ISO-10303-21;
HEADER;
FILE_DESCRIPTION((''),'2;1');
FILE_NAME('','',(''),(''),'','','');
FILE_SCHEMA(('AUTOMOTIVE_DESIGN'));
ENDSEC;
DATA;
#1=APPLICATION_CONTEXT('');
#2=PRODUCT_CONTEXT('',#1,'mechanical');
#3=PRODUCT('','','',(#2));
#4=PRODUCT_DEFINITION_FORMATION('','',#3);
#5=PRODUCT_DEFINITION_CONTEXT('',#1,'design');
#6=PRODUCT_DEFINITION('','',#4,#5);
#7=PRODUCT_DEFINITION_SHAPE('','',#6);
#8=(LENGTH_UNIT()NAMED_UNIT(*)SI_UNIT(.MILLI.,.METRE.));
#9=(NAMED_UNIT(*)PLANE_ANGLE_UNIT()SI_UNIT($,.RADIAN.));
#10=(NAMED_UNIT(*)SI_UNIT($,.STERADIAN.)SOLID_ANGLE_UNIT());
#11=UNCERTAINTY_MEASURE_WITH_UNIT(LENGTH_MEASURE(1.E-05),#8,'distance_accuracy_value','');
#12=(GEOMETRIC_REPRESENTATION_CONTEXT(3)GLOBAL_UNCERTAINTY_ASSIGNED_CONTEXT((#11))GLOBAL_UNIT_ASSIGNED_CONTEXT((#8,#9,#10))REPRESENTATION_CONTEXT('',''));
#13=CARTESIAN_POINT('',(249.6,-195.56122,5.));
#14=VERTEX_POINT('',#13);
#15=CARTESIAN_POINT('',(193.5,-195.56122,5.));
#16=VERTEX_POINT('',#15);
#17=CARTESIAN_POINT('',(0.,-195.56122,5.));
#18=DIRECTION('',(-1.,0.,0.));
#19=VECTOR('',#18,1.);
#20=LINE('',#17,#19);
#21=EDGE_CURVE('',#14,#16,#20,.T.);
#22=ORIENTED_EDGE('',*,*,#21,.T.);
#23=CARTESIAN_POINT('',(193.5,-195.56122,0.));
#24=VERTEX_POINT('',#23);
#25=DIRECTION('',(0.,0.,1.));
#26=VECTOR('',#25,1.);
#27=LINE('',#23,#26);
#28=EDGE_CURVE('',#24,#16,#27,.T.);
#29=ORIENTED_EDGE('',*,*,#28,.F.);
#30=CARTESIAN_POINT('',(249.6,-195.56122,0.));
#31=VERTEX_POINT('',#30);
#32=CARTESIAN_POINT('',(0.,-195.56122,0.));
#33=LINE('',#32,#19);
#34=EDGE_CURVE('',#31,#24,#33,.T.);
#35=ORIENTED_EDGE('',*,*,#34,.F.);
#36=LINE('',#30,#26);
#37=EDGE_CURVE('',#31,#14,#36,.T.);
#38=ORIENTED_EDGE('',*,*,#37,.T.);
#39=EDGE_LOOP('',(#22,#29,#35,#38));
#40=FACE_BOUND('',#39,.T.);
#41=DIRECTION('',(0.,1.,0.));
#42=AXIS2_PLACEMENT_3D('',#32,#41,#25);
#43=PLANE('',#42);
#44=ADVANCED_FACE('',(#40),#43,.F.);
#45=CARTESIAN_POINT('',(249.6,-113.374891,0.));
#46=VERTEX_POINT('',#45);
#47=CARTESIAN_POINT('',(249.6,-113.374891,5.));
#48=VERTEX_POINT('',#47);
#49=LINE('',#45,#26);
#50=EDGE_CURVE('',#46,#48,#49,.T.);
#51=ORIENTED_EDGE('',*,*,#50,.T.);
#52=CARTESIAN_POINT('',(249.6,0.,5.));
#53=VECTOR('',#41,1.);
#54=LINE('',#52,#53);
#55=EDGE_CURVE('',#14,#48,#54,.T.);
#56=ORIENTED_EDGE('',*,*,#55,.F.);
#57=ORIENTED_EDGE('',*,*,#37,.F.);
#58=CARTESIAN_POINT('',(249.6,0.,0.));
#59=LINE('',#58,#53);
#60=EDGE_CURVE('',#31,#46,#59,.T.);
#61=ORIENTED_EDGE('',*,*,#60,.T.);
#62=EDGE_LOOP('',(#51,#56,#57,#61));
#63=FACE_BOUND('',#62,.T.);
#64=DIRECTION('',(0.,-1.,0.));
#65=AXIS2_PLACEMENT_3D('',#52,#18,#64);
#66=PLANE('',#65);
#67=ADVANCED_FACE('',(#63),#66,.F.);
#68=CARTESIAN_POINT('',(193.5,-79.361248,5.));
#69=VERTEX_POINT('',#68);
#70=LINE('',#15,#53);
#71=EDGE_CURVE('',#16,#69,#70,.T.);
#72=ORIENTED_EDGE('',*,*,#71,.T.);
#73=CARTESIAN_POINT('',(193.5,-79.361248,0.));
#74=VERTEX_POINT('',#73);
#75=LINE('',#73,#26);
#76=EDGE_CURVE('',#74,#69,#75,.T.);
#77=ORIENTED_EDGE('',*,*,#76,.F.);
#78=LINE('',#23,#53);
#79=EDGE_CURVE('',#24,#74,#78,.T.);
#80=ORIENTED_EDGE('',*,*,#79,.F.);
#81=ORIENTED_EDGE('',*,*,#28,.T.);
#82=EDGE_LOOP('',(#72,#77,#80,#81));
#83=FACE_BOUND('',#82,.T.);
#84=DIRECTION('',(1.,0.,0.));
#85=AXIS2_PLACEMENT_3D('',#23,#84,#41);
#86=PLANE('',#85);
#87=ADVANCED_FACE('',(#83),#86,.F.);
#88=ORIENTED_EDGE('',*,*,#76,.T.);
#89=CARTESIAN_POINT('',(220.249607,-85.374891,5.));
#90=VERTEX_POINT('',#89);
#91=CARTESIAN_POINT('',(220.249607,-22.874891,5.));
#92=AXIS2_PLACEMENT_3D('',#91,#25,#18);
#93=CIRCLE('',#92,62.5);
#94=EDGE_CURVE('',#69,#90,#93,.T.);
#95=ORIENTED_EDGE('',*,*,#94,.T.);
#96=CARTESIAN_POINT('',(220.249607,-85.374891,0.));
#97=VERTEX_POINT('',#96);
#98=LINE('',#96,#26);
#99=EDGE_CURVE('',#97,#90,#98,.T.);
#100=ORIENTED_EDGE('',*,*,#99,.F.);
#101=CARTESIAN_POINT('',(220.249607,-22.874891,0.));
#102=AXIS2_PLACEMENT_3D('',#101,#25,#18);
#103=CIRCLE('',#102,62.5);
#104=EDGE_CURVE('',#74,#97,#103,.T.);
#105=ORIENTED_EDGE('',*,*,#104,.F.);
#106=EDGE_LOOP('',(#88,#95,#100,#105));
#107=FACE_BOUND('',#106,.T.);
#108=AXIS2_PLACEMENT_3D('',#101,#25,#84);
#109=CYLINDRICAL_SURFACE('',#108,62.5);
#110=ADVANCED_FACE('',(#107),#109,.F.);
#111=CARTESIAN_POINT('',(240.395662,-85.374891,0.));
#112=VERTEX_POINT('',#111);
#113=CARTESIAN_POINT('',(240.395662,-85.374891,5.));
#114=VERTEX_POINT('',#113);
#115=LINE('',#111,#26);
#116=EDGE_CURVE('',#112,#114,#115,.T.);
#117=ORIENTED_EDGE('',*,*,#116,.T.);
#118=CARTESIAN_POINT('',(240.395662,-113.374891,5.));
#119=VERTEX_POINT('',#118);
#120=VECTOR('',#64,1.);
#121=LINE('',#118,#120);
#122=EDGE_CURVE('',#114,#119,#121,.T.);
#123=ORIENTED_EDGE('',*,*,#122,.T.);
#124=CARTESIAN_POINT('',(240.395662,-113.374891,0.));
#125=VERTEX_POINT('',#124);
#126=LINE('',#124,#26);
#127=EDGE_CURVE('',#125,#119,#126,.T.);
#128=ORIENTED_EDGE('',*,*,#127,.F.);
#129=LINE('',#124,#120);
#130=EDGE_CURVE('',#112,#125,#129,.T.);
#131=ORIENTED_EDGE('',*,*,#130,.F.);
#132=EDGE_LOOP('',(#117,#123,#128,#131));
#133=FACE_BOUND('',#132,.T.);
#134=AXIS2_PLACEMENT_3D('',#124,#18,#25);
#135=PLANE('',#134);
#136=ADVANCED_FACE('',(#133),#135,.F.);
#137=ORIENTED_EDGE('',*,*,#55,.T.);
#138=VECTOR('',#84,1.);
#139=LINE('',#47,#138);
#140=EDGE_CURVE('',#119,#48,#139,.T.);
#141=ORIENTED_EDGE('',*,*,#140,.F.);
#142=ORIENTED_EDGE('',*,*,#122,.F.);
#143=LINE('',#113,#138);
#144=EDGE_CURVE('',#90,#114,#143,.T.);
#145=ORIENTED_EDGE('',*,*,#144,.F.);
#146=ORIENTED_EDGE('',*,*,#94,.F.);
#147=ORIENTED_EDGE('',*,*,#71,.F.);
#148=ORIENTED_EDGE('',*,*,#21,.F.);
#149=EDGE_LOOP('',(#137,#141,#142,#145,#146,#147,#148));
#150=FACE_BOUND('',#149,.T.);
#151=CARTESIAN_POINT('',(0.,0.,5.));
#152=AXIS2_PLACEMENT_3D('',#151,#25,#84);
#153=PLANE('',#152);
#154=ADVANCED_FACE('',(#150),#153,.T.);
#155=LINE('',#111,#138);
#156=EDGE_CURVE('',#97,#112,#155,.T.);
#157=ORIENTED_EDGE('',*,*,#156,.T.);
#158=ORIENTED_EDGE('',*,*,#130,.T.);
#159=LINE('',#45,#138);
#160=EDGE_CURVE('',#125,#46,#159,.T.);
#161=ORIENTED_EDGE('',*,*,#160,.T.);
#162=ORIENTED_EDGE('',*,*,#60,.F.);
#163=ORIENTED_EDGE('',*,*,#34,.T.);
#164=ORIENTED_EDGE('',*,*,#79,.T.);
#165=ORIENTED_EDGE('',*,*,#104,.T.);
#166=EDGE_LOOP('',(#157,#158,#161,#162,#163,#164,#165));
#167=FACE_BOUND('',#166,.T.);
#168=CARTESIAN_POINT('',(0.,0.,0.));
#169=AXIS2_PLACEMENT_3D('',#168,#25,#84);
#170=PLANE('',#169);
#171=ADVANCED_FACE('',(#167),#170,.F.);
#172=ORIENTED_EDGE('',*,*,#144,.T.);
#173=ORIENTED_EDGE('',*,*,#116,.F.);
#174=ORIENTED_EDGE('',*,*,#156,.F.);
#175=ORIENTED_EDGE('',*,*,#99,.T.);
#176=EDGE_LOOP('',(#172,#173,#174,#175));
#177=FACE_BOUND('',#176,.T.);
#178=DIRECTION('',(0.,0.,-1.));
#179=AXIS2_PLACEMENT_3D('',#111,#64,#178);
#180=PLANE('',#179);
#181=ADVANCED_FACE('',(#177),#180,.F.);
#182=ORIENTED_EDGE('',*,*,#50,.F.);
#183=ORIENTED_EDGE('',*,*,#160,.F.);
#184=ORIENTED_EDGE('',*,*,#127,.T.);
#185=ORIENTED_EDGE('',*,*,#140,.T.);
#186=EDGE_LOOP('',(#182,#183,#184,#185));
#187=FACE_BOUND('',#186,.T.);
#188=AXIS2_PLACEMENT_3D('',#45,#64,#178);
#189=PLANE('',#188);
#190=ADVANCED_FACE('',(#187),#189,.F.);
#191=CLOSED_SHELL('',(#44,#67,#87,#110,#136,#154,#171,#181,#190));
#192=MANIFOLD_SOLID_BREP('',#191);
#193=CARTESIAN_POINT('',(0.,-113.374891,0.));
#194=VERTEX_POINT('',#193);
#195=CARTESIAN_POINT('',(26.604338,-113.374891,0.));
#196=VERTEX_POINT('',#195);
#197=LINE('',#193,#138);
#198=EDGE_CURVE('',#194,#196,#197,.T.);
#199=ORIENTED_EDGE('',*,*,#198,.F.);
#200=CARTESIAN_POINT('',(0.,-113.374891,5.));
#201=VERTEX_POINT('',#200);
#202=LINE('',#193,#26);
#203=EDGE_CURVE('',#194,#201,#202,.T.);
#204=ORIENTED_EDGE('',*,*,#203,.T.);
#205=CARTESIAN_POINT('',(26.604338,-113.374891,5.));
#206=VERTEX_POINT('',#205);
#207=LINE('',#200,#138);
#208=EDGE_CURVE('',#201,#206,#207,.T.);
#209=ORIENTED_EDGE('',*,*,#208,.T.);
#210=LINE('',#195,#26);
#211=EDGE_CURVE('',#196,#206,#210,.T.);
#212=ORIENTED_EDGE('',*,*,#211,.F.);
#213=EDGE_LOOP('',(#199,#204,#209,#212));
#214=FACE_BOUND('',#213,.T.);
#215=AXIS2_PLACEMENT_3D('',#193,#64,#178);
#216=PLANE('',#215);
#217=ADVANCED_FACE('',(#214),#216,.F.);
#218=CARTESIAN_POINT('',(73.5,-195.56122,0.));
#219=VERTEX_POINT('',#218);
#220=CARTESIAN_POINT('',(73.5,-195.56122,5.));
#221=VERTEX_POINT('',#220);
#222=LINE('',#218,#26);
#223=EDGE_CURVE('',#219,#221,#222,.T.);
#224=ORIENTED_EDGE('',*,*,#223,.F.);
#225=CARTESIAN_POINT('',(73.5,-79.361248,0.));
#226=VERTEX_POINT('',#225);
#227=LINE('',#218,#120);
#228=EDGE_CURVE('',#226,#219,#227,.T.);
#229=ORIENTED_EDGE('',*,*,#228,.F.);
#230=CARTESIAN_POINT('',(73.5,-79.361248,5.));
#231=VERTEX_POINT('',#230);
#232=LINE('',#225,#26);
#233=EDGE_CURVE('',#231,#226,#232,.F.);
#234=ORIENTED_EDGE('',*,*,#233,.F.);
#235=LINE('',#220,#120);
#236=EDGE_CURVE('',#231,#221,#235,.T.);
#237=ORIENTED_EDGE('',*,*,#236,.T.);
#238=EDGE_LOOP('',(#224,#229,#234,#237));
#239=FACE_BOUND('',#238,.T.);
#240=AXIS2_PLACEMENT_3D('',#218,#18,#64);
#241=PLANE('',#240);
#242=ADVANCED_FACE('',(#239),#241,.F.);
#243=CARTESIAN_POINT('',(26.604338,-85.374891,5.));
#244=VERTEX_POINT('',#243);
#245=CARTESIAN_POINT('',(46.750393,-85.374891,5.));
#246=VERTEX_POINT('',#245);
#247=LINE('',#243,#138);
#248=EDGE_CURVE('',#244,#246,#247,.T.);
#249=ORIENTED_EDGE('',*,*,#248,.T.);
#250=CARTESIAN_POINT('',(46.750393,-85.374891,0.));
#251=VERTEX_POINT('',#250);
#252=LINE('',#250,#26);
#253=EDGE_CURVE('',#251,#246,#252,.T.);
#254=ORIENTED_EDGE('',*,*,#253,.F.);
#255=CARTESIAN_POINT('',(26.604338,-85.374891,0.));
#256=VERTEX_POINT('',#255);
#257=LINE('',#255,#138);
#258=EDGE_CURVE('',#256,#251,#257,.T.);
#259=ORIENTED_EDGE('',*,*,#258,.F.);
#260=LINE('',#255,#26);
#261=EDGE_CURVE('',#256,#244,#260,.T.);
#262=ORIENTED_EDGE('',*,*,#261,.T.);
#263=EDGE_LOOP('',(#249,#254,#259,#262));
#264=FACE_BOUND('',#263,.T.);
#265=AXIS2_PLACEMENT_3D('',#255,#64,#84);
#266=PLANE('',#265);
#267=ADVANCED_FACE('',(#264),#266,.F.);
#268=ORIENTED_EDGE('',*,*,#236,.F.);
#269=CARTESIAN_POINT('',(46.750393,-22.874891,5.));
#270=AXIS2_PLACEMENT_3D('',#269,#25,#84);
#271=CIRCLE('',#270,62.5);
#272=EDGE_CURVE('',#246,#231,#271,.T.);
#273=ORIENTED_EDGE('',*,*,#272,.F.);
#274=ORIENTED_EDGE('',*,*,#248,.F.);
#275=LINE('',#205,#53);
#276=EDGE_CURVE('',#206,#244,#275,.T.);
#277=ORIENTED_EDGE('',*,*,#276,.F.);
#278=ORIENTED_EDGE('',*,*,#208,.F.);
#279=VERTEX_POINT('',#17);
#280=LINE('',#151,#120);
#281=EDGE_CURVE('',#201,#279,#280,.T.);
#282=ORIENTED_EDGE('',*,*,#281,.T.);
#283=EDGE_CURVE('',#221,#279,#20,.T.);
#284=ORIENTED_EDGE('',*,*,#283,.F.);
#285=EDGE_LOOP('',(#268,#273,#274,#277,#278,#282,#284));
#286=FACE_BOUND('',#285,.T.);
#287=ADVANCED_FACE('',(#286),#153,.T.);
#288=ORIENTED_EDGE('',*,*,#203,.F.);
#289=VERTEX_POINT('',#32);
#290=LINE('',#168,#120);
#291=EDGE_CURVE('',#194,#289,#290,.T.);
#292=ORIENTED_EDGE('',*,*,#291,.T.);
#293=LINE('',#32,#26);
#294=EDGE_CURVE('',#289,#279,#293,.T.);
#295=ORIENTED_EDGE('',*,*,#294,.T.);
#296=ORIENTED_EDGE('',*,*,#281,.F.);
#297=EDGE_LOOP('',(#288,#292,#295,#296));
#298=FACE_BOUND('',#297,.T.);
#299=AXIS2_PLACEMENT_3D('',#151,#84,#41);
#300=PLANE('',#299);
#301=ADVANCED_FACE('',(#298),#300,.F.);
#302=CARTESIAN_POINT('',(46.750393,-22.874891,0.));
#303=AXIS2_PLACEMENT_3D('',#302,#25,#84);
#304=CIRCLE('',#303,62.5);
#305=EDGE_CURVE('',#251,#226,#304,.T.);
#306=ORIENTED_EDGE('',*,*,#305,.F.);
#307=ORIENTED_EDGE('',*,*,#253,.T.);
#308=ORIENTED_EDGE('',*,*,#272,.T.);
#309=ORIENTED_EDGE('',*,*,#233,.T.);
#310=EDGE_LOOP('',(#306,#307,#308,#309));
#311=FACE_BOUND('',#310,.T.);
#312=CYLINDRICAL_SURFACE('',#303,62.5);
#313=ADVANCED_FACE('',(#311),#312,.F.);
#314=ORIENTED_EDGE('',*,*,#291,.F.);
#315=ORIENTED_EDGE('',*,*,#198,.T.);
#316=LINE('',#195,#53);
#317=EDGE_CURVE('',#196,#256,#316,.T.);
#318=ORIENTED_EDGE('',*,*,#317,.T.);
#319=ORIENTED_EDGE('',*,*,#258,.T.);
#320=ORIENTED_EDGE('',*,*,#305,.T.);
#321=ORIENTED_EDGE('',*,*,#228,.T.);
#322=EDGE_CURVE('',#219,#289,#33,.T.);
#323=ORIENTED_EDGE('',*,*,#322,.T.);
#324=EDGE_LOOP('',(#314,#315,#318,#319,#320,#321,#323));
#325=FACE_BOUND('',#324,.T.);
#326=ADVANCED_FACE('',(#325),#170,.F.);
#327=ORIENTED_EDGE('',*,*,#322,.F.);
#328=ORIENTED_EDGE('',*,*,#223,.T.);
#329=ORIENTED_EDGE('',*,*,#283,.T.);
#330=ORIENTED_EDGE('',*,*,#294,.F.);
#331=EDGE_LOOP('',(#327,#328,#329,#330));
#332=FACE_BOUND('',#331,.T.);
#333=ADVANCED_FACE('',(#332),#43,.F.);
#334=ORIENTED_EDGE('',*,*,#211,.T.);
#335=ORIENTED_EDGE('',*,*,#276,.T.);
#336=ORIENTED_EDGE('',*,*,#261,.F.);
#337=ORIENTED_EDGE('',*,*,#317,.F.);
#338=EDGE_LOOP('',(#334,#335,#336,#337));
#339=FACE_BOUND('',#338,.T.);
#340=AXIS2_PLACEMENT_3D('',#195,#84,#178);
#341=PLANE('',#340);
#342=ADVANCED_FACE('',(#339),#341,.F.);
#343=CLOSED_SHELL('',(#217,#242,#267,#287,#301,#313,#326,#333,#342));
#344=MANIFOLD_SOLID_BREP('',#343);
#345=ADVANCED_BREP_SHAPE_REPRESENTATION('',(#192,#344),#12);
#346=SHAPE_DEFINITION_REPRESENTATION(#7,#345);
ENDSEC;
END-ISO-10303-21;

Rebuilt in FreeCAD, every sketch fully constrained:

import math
import FreeCAD as App
import Part
import Sketcher
from FreeCAD import Vector
Q = App.Units.Quantity


def add_polygon(sketch, points):
    """Adds a closed chain of lines whose ends are joined by coincident constraints."""
    first, n = sketch.GeometryCount, len(points)
    for a, b in zip(points, points[1:] + points[:1]):
        sketch.addGeometry(Part.LineSegment(App.Vector(*a, 0), App.Vector(*b, 0)), False)
    for i in range(n):
        sketch.addConstraint(Sketcher.Constraint("Coincident", first + i, 2, first + (i + 1) % n, 1))

doc = App.newDocument("Part")
body = doc.addObject("PartDesign::Body", "Body")
body.AllowCompound = True

sketch1 = doc.addObject("Sketcher::SketchObject", "Sketch")
body.addObject(sketch1)
sketch1.AttachmentSupport = (doc.XY_Plane, [""])
sketch1.MapMode = "FlatFace"
add_polygon(sketch1, [(0, 0), (0, -267.4), (249.6, -267.4), (249.6, 0)])
sketch1.addConstraint(Sketcher.Constraint("Vertical", 0))
sketch1.addConstraint(Sketcher.Constraint("Horizontal", 1))
sketch1.addConstraint(Sketcher.Constraint("Vertical", 2))
sketch1.addConstraint(Sketcher.Constraint("Horizontal", 3))
sketch1.addConstraint(Sketcher.Constraint("Coincident", 3, 2, -1, 1))
sketch1.addConstraint(Sketcher.Constraint("DistanceX", 1, 1, 1, 2, Q("249.6 mm")))
sketch1.addConstraint(Sketcher.Constraint("DistanceY", 0, 2, 0, 1, Q("267.4 mm")))
pad1 = doc.addObject("PartDesign::Pad", "Pad")
body.addObject(pad1)
pad1.Profile = sketch1
pad1.Length = 5

sketch2 = doc.addObject("Sketcher::SketchObject", "Sketch001")
body.addObject(sketch2)
sketch2.AttachmentSupport = (doc.XY_Plane, [""])
sketch2.MapMode = "FlatFace"
sketch2.AttachmentOffset = App.Placement(Vector(0, 0, 5), App.Rotation())
add_polygon(sketch2, [(0, -195.56122), (0, -267.4), (249.6, -267.4), (249.6, -195.56122)])
sketch2.addGeometry(Part.LineSegment(Vector(249.6, 0, 0), Vector(162.086137, 0, 0)), False)
sketch2.addGeometry(Part.ArcOfCircle(Part.Circle(Vector(220.249607, -22.874891, 0), Vector(0, 0, 1), 62.5), math.radians(158.53097), math.radians(270)), False)
sketch2.addGeometry(Part.LineSegment(Vector(220.249607, -85.374891, 0), Vector(240.395662, -85.374891, 0)), False)
sketch2.addGeometry(Part.LineSegment(Vector(240.395662, -85.374891, 0), Vector(240.395662, -113.374891, 0)), False)
sketch2.addGeometry(Part.LineSegment(Vector(240.395662, -113.374891, 0), Vector(249.6, -113.374891, 0)), False)
sketch2.addGeometry(Part.LineSegment(Vector(249.6, -113.374891, 0), Vector(249.6, 0, 0)), False)
sketch2.addGeometry(Part.LineSegment(Vector(104.913863, 0, 0), Vector(0, 0, 0)), False)
sketch2.addGeometry(Part.LineSegment(Vector(0, 0, 0), Vector(0, -113.374891, 0)), False)
sketch2.addGeometry(Part.LineSegment(Vector(0, -113.374891, 0), Vector(26.604338, -113.374891, 0)), False)
sketch2.addGeometry(Part.LineSegment(Vector(26.604338, -113.374891, 0), Vector(26.604338, -85.374891, 0)), False)
sketch2.addGeometry(Part.LineSegment(Vector(26.604338, -85.374891, 0), Vector(46.750393, -85.374891, 0)), False)
sketch2.addGeometry(Part.ArcOfCircle(Part.Circle(Vector(46.750393, -22.874891, 0), Vector(0, 0, 1), 62.5), math.radians(-90), math.radians(21.46903)), False)
sketch2.addConstraint(Sketcher.Constraint("Coincident", 4, 2, 5, 1))
sketch2.addConstraint(Sketcher.Constraint("Tangent", 5, 2, 6, 1))
sketch2.addConstraint(Sketcher.Constraint("Coincident", 6, 2, 7, 1))
sketch2.addConstraint(Sketcher.Constraint("Coincident", 7, 2, 8, 1))
sketch2.addConstraint(Sketcher.Constraint("Coincident", 8, 2, 9, 1))
sketch2.addConstraint(Sketcher.Constraint("Coincident", 9, 2, 4, 1))
sketch2.addConstraint(Sketcher.Constraint("Coincident", 10, 2, 11, 1))
sketch2.addConstraint(Sketcher.Constraint("Coincident", 11, 2, 12, 1))
sketch2.addConstraint(Sketcher.Constraint("Coincident", 12, 2, 13, 1))
sketch2.addConstraint(Sketcher.Constraint("Coincident", 13, 2, 14, 1))
sketch2.addConstraint(Sketcher.Constraint("Tangent", 14, 2, 15, 1))
sketch2.addConstraint(Sketcher.Constraint("Coincident", 15, 2, 10, 1))
sketch2.addConstraint(Sketcher.Constraint("Vertical", 0))
sketch2.addConstraint(Sketcher.Constraint("Horizontal", 1))
sketch2.addConstraint(Sketcher.Constraint("Vertical", 2))
sketch2.addConstraint(Sketcher.Constraint("Horizontal", 3))
sketch2.addConstraint(Sketcher.Constraint("Horizontal", 4))
sketch2.addConstraint(Sketcher.Constraint("Horizontal", 6))
sketch2.addConstraint(Sketcher.Constraint("Vertical", 7))
sketch2.addConstraint(Sketcher.Constraint("Horizontal", 8))
sketch2.addConstraint(Sketcher.Constraint("Vertical", 9))
sketch2.addConstraint(Sketcher.Constraint("Horizontal", 10))
sketch2.addConstraint(Sketcher.Constraint("Vertical", 11))
sketch2.addConstraint(Sketcher.Constraint("Horizontal", 12))
sketch2.addConstraint(Sketcher.Constraint("Vertical", 13))
sketch2.addConstraint(Sketcher.Constraint("Horizontal", 14))
sketch2.addConstraint(Sketcher.Constraint("Coincident", 10, 2, -1, 1))
sketch2.addConstraint(Sketcher.Constraint("Equal", 5, 15))
sketch2.addConstraint(Sketcher.Constraint("PointOnObject", 0, 2, -2))
sketch2.addConstraint(Sketcher.Constraint("PointOnObject", 4, 2, -1))
sketch2.addConstraint(Sketcher.Constraint("Horizontal", 5, 3, 15, 3))
sketch2.addConstraint(Sketcher.Constraint("Horizontal", 8, 2, 11, 2))
sketch2.addConstraint(Sketcher.Constraint("Vertical", 2, 2, 8, 2))
sketch2.addConstraint(Sketcher.Constraint("Equal", 6, 14))
sketch2.addConstraint(Sketcher.Constraint("Radius", 5, Q("62.5 mm")))
sketch2.addConstraint(Sketcher.Constraint("DistanceY", 7, 2, 7, 1, Q("28 mm")))
sketch2.addConstraint(Sketcher.Constraint("DistanceX", 1, 1, 1, 2, Q("249.6 mm")))
sketch2.addConstraint(Sketcher.Constraint("DistanceY", 0, 2, -1, 1, Q("267.4 mm")))
sketch2.addConstraint(Sketcher.Constraint("DistanceX", 8, 1, 8, 2, Q("9.204338 mm")))
sketch2.addConstraint(Sketcher.Constraint("DistanceX", 12, 1, 12, 2, Q("26.604338 mm")))
sketch2.addConstraint(Sketcher.Constraint("DistanceY", 0, 2, 0, 1, Q("71.83878 mm")))
sketch2.addConstraint(Sketcher.Constraint("DistanceY", 9, 1, 9, 2, Q("113.374891 mm")))
sketch2.addConstraint(Sketcher.Constraint("DistanceX", 4, 2, 4, 1, Q("87.513863 mm")))
pocket1 = doc.addObject("PartDesign::Pocket", "Pocket")
body.addObject(pocket1)
pocket1.Profile = sketch2
pocket1.Type = "ThroughAll"

sketch3 = doc.addObject("Sketcher::SketchObject", "Sketch002")
body.addObject(sketch3)
sketch3.AttachmentSupport = (doc.XY_Plane, [""])
sketch3.MapMode = "FlatFace"
sketch3.AttachmentOffset = App.Placement(Vector(0, 0, 5), App.Rotation())
add_polygon(sketch3, [(73.5, 0), (73.5, -195.56122), (193.5, -195.56122), (193.5, 0)])
sketch3.addConstraint(Sketcher.Constraint("Vertical", 0))
sketch3.addConstraint(Sketcher.Constraint("Horizontal", 1))
sketch3.addConstraint(Sketcher.Constraint("Vertical", 2))
sketch3.addConstraint(Sketcher.Constraint("Horizontal", 3))
sketch3.addConstraint(Sketcher.Constraint("PointOnObject", 2, 2, -1))
sketch3.addConstraint(Sketcher.Constraint("DistanceX", 1, 1, 1, 2, Q("120 mm")))
sketch3.addConstraint(Sketcher.Constraint("DistanceX", -1, 1, 0, 2, Q("73.5 mm")))
sketch3.addConstraint(Sketcher.Constraint("DistanceY", 0, 2, 0, 1, Q("195.56122 mm")))
pocket2 = doc.addObject("PartDesign::Pocket", "Pocket001")
body.addObject(pocket2)
pocket2.Profile = sketch3
pocket2.Type = "ThroughAll"

doc.recompute()
